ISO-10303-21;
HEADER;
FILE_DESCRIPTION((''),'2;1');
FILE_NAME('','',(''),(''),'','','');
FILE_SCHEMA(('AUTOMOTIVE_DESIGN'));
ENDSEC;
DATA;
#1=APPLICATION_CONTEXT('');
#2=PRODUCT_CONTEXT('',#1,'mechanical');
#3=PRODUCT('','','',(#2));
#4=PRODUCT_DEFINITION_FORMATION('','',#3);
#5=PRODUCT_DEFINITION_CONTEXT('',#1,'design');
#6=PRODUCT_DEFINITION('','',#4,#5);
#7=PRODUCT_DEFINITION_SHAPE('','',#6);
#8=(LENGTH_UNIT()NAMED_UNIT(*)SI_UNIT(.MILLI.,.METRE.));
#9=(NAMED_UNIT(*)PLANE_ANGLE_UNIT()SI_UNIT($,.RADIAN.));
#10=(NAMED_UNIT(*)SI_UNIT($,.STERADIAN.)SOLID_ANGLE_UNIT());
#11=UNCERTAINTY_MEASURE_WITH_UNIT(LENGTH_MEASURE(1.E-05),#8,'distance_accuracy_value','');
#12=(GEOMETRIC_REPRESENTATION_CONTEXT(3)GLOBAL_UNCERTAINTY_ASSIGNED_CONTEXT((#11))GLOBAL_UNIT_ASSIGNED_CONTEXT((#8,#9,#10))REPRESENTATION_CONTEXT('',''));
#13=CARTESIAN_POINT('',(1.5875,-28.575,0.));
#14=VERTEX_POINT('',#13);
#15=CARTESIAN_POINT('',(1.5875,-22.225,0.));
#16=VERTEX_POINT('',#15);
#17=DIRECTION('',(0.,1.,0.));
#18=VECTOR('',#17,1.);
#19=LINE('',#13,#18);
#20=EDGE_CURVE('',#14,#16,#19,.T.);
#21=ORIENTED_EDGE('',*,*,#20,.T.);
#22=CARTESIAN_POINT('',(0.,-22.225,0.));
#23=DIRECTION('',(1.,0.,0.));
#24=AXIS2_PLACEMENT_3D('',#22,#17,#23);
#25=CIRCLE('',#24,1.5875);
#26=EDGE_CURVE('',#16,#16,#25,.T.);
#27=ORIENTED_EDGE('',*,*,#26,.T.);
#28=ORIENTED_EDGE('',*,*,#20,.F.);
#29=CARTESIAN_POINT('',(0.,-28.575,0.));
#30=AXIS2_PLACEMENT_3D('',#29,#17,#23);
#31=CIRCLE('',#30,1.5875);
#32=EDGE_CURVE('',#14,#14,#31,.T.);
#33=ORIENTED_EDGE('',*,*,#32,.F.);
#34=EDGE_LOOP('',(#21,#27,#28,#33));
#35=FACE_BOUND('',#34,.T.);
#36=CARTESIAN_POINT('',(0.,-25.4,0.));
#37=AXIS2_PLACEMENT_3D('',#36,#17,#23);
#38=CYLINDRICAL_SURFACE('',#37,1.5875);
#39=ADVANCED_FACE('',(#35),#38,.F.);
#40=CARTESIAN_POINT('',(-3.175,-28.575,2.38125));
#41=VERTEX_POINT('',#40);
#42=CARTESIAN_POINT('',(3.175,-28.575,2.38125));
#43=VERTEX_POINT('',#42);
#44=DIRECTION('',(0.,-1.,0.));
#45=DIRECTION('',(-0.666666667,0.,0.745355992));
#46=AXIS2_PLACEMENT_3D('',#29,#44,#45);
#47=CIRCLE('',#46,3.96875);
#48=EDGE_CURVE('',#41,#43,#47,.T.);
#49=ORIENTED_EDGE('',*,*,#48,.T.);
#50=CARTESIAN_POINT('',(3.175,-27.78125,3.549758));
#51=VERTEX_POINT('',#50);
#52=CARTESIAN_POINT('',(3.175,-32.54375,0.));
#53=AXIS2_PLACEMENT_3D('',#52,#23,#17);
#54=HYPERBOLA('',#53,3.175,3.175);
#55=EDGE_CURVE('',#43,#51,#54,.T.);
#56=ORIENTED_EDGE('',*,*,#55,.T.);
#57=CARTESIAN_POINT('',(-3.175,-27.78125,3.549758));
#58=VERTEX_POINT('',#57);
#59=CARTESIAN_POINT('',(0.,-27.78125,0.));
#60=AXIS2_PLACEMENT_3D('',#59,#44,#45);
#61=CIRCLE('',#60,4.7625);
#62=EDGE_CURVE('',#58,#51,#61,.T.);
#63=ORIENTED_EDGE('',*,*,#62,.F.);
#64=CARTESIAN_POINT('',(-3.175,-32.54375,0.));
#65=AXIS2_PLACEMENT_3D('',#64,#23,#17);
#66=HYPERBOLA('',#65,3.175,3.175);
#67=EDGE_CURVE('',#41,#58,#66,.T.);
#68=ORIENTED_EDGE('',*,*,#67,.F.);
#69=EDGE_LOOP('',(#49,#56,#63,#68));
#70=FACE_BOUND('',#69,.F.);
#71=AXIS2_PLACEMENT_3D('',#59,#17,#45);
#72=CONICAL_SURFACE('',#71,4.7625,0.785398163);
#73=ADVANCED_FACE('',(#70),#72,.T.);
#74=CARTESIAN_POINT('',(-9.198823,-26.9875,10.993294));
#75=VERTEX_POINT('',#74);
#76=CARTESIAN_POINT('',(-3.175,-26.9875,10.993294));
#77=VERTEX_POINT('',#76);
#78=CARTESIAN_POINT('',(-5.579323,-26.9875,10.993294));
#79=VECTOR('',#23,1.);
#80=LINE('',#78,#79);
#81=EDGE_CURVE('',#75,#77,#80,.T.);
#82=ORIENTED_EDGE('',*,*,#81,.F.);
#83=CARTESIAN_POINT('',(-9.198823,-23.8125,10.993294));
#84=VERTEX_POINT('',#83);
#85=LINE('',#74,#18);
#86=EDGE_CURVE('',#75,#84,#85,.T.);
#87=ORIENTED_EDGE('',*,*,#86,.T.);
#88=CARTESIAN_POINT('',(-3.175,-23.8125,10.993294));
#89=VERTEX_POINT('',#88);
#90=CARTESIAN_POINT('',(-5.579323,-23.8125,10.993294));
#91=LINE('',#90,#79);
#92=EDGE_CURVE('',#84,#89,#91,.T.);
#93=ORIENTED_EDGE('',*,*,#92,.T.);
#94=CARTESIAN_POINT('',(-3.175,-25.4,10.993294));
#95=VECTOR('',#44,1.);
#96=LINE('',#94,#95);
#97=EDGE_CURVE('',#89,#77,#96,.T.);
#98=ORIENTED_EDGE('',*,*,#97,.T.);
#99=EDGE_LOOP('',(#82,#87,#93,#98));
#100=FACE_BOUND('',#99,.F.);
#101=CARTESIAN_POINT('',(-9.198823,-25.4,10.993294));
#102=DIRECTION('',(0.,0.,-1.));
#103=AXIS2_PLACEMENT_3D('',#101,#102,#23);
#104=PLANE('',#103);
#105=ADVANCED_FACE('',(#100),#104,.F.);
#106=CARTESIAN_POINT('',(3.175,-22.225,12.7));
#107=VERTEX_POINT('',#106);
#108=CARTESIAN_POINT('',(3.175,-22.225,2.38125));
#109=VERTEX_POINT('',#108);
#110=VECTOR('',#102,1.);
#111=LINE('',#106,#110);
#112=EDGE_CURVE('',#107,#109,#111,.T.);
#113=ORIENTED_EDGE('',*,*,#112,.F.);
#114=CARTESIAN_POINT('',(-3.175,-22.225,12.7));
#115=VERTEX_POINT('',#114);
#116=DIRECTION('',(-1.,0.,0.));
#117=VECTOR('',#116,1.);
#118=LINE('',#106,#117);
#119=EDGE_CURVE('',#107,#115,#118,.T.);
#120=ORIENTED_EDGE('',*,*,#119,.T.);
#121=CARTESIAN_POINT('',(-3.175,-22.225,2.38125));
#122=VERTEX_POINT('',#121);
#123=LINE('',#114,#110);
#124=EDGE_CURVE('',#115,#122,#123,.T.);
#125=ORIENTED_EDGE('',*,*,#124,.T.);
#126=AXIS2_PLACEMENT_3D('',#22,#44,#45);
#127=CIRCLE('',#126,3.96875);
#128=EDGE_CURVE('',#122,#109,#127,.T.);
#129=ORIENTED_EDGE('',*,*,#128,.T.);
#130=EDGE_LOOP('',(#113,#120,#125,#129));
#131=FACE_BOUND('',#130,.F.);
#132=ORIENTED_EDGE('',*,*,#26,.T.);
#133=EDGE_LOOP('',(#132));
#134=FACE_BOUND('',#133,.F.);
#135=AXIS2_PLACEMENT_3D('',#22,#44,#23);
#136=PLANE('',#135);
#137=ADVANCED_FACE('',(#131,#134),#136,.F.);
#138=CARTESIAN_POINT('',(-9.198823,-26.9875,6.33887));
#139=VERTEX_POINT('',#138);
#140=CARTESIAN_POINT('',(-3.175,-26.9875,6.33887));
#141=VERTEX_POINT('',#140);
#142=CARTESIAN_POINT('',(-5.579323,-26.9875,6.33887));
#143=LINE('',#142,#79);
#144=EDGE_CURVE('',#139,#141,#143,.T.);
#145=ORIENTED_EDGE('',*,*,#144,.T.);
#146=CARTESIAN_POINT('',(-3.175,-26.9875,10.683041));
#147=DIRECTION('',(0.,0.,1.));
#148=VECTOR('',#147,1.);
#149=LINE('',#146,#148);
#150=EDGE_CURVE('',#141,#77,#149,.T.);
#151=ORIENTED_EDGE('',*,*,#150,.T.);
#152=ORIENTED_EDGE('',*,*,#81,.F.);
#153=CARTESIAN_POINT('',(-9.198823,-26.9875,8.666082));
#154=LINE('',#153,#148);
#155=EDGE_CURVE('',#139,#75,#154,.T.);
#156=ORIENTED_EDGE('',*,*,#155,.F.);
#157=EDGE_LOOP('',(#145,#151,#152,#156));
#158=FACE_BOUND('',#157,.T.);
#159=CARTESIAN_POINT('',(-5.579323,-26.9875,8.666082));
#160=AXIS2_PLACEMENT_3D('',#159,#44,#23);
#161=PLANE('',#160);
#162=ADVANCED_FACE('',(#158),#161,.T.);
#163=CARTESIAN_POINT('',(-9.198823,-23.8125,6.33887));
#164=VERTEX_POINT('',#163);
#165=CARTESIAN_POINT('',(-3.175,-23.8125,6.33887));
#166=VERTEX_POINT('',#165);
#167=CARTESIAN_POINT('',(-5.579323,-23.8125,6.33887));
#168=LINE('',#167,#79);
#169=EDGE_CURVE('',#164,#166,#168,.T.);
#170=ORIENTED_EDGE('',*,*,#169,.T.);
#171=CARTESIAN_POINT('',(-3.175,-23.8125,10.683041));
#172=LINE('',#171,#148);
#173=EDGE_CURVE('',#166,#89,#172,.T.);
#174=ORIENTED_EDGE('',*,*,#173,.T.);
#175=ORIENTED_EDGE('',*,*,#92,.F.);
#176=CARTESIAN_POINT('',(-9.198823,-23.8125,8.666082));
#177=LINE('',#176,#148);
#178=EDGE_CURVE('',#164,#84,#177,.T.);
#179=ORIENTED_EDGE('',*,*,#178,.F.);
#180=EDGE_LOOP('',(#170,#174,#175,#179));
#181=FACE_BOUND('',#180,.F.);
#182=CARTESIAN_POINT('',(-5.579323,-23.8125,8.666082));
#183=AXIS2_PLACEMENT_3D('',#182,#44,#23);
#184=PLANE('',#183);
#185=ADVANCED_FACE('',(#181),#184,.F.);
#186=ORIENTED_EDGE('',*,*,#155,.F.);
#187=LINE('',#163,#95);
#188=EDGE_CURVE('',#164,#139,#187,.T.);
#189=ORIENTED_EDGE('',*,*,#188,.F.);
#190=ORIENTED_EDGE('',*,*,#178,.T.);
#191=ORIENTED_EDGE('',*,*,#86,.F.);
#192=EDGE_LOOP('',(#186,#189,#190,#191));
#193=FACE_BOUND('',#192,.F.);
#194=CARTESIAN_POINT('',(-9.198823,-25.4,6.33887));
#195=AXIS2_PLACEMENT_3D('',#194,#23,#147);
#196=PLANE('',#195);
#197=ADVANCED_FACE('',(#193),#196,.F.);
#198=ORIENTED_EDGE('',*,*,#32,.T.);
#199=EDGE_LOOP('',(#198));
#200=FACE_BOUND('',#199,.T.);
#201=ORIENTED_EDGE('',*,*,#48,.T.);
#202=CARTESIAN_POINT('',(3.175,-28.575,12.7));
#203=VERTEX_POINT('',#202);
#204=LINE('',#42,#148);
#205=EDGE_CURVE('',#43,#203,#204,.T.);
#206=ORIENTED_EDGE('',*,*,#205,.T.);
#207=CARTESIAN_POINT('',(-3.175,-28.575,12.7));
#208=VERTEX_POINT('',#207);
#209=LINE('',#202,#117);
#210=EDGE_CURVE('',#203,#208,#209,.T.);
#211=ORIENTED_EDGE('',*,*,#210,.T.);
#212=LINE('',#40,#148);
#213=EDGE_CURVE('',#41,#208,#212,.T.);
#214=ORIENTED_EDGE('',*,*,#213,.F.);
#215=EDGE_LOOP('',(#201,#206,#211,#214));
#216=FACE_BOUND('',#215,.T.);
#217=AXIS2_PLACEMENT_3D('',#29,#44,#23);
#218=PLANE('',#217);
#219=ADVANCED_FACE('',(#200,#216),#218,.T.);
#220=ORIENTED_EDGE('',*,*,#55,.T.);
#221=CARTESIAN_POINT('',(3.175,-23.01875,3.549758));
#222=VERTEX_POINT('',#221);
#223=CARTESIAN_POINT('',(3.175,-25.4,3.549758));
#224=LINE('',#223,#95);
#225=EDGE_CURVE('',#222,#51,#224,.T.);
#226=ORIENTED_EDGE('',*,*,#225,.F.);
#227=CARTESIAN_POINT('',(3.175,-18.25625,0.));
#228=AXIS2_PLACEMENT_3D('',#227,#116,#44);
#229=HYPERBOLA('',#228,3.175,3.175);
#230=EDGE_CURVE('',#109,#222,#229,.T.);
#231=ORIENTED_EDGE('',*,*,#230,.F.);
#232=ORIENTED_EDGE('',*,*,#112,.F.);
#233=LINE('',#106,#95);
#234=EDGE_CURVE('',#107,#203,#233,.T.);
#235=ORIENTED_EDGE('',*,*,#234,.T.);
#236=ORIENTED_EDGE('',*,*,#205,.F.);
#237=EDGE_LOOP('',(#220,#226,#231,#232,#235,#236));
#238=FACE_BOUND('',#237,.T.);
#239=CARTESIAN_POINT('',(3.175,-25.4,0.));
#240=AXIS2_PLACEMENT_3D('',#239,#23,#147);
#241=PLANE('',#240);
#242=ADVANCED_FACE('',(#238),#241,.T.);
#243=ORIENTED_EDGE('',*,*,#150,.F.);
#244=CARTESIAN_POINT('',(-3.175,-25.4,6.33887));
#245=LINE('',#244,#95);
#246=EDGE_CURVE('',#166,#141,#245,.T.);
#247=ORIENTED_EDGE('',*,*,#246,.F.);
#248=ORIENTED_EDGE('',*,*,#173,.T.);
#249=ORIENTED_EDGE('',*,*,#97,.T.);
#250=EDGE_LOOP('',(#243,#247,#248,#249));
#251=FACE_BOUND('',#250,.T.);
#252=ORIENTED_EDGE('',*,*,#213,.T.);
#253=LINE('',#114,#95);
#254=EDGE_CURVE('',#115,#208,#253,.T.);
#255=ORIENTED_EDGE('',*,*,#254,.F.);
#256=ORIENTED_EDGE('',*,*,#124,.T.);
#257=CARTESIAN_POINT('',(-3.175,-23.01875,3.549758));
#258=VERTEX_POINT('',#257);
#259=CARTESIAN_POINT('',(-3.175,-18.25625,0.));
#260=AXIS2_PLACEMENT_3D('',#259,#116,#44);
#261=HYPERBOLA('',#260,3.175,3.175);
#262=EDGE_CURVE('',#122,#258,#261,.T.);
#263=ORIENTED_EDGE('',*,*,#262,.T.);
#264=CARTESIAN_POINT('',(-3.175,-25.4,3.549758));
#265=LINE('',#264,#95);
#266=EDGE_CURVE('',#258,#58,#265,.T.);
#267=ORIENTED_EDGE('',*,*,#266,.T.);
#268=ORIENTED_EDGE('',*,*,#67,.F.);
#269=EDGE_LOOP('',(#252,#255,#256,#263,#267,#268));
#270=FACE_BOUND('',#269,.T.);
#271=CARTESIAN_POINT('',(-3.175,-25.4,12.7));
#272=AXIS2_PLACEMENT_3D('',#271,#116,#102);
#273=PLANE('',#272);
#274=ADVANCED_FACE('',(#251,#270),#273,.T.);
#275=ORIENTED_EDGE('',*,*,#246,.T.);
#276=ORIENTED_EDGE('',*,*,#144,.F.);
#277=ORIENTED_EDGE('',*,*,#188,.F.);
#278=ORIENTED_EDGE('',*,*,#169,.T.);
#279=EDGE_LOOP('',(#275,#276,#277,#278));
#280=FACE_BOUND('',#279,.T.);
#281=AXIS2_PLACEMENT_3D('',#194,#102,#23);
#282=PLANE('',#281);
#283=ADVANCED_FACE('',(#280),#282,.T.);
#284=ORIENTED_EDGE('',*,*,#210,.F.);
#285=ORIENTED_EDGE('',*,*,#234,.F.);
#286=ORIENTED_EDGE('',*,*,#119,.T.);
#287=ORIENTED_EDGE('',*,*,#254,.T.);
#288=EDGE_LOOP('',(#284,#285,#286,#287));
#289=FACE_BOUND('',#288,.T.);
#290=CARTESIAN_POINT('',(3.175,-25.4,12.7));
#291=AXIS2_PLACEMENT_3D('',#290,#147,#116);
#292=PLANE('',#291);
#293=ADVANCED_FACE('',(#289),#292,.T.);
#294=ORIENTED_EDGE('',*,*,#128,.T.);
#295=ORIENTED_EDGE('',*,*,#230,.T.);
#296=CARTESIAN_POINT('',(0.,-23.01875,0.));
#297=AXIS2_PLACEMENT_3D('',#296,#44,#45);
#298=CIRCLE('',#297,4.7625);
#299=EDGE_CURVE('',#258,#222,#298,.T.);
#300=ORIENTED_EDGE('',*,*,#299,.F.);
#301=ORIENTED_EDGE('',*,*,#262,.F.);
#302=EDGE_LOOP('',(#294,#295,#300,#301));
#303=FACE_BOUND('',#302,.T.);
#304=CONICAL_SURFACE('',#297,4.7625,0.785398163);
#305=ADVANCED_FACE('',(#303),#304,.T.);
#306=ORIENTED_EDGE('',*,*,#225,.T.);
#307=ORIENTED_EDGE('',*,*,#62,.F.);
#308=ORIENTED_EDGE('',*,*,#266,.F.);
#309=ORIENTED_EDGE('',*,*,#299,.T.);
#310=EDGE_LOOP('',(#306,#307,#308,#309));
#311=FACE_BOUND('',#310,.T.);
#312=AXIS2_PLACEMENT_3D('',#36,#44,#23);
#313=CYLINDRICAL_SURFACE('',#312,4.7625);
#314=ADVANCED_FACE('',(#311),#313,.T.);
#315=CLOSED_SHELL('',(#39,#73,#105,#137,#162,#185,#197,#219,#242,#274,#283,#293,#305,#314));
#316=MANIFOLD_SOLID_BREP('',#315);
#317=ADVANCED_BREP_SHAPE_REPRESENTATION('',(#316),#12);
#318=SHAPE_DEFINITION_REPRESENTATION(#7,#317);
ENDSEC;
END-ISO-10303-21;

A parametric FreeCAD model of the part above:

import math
import FreeCAD as App
import Part
import Sketcher
Q = App.Units.Quantity


def edges_at(feature, points):
    """Names of the edges that pass closest to the given points."""
    edges = feature.Shape.Edges
    near = lambda p: min(range(len(edges)), key=lambda i: edges[i].distToShape(Part.Vertex(*p))[0])
    return sorted({f"Edge{near(p) + 1}" for p in points})


def add_polygon(sketch, points):
    """Adds a closed chain of lines whose ends are joined by coincident constraints."""
    first, n = sketch.GeometryCount, len(points)
    for a, b in zip(points, points[1:] + points[:1]):
        sketch.addGeometry(Part.LineSegment(App.Vector(*a, 0), App.Vector(*b, 0)), False)
    for i in range(n):
        sketch.addConstraint(Sketcher.Constraint("Coincident", first + i, 2, first + (i + 1) % n, 1))

doc = App.newDocument("Part")
body = doc.addObject("PartDesign::Body", "Body")

sketch1 = body.newObject("Sketcher::SketchObject", "Sketch")
sketch1.AttachmentSupport = (doc.getObject("XZ_Plane"), [""])
sketch1.MapMode = "FlatFace"
sketch1.AttachmentOffset = App.Placement(App.Vector(0, 0, 1 * 25.4), App.Rotation())
sketch1.addGeometry([
    Part.Circle(App.Vector(0, 0, 0), App.Vector(0, 0, 1), 4.8),
    Part.Circle(App.Vector(0, 0, 0), App.Vector(0, 0, 1), 1.6),
], False)
sketch1.addConstraint([
    Sketcher.Constraint("Coincident", 0, 3, -1, 1),
    Sketcher.Constraint("Coincident", 1, 3, -1, 1),
    Sketcher.Constraint("Diameter", 0, Q("0.375 in")),
    Sketcher.Constraint("Diameter", 1, Q("0.125 in")),
])
pad1 = body.newObject("PartDesign::Pad", "Pad")
pad1.Profile = sketch1
pad1.Length = Q("0.25 in")
pad1.Midplane = True

sketch2 = body.newObject("Sketcher::SketchObject", "Sketch001")
sketch2.AttachmentSupport = (doc.getObject("XZ_Plane"), [""])
sketch2.MapMode = "FlatFace"
sketch2.AttachmentOffset = App.Placement(App.Vector(0, 0, 1 * 25.4), App.Rotation())
sketch2.addGeometry([
    Part.LineSegment(App.Vector(3.2, 0, 0), App.Vector(3.2, 12.7, 0)),
    Part.LineSegment(App.Vector(3.2, 12.7, 0), App.Vector(-3.2, 12.7, 0)),
    Part.LineSegment(App.Vector(-3.2, 12.7, 0), App.Vector(-3.2, 0, 0)),
    Part.LineSegment(App.Vector(-3.2, 0, 0), App.Vector(-1.6, 0, 0)),
    Part.ArcOfCircle(Part.Circle(App.Vector(0, 0, 0), App.Vector(0, 0, 1), 1.6), math.radians(0), math.radians(180)),
    Part.LineSegment(App.Vector(1.6, 0, 0), App.Vector(3.2, 0, 0)),
], False)
sketch2.addConstraint([
    Sketcher.Constraint("Coincident", 0, 2, 1, 1),
    Sketcher.Constraint("Coincident", 1, 2, 2, 1),
    Sketcher.Constraint("Coincident", 2, 2, 3, 1),
    Sketcher.Constraint("Coincident", 3, 2, 4, 2),
    Sketcher.Constraint("Coincident", 4, 1, 5, 1),
    Sketcher.Constraint("Coincident", 5, 2, 0, 1),
    Sketcher.Constraint("Vertical", 0),
    Sketcher.Constraint("Horizontal", 1),
    Sketcher.Constraint("Vertical", 2),
    Sketcher.Constraint("Horizontal", 3),
    Sketcher.Constraint("Horizontal", 5),
    Sketcher.Constraint("Coincident", 4, 3, -1, 1),
    Sketcher.Constraint("Symmetric", 2, 2, 5, 2, -1, 1),
    Sketcher.Constraint("PointOnObject", 2, 2, -1),
    Sketcher.Constraint("DistanceY", 0, 1, 0, 2, Q("0.5 in")),
    Sketcher.Constraint("Radius", 4, Q("0.0625 in")),
    Sketcher.Constraint("DistanceX", 1, 2, 1, 1, Q("0.25 in")),
])
pad2 = body.newObject("PartDesign::Pad", "Pad001")
pad2.Profile = sketch2
pad2.Length = Q("0.25 in")
pad2.Midplane = True

sketch3 = body.newObject("Sketcher::SketchObject", "Sketch002")
sketch3.AttachmentSupport = (doc.getObject("XZ_Plane"), [""])
sketch3.MapMode = "FlatFace"
sketch3.AttachmentOffset = App.Placement(App.Vector(0, 0, 1 * 25.4), App.Rotation())
add_polygon(sketch3, [(-9.2, 11), (-9.2, 6.3), (-2, 6.3), (-2, 11)])
sketch3.addConstraint([
    Sketcher.Constraint("Vertical", 0),
    Sketcher.Constraint("Horizontal", 1),
    Sketcher.Constraint("Vertical", 2),
    Sketcher.Constraint("Horizontal", 3),
    Sketcher.Constraint("DistanceX", 1, 1, 1, 2, Q("0.285 in")),
    Sketcher.Constraint("DistanceY", 0, 2, 0, 1, 4.654424),
    Sketcher.Constraint("DistanceY", -1, 1, 0, 2, 6.33887),
    Sketcher.Constraint("DistanceX", 0, 2, -1, 1, 9.198823),
])
pad3 = body.newObject("PartDesign::Pad", "Pad002")
pad3.Profile = sketch3
pad3.Length = Q("0.125 in")
pad3.Midplane = True
doc.recompute()

chamfer = body.newObject("PartDesign::Chamfer", "Chamfer")
chamfer.Base = (pad3, edges_at(pad3, [(0, -28.575, -4.763), (0, -22.225, -4.763)]))
chamfer.Size = Q("0.03125 in")

doc.recompute()
